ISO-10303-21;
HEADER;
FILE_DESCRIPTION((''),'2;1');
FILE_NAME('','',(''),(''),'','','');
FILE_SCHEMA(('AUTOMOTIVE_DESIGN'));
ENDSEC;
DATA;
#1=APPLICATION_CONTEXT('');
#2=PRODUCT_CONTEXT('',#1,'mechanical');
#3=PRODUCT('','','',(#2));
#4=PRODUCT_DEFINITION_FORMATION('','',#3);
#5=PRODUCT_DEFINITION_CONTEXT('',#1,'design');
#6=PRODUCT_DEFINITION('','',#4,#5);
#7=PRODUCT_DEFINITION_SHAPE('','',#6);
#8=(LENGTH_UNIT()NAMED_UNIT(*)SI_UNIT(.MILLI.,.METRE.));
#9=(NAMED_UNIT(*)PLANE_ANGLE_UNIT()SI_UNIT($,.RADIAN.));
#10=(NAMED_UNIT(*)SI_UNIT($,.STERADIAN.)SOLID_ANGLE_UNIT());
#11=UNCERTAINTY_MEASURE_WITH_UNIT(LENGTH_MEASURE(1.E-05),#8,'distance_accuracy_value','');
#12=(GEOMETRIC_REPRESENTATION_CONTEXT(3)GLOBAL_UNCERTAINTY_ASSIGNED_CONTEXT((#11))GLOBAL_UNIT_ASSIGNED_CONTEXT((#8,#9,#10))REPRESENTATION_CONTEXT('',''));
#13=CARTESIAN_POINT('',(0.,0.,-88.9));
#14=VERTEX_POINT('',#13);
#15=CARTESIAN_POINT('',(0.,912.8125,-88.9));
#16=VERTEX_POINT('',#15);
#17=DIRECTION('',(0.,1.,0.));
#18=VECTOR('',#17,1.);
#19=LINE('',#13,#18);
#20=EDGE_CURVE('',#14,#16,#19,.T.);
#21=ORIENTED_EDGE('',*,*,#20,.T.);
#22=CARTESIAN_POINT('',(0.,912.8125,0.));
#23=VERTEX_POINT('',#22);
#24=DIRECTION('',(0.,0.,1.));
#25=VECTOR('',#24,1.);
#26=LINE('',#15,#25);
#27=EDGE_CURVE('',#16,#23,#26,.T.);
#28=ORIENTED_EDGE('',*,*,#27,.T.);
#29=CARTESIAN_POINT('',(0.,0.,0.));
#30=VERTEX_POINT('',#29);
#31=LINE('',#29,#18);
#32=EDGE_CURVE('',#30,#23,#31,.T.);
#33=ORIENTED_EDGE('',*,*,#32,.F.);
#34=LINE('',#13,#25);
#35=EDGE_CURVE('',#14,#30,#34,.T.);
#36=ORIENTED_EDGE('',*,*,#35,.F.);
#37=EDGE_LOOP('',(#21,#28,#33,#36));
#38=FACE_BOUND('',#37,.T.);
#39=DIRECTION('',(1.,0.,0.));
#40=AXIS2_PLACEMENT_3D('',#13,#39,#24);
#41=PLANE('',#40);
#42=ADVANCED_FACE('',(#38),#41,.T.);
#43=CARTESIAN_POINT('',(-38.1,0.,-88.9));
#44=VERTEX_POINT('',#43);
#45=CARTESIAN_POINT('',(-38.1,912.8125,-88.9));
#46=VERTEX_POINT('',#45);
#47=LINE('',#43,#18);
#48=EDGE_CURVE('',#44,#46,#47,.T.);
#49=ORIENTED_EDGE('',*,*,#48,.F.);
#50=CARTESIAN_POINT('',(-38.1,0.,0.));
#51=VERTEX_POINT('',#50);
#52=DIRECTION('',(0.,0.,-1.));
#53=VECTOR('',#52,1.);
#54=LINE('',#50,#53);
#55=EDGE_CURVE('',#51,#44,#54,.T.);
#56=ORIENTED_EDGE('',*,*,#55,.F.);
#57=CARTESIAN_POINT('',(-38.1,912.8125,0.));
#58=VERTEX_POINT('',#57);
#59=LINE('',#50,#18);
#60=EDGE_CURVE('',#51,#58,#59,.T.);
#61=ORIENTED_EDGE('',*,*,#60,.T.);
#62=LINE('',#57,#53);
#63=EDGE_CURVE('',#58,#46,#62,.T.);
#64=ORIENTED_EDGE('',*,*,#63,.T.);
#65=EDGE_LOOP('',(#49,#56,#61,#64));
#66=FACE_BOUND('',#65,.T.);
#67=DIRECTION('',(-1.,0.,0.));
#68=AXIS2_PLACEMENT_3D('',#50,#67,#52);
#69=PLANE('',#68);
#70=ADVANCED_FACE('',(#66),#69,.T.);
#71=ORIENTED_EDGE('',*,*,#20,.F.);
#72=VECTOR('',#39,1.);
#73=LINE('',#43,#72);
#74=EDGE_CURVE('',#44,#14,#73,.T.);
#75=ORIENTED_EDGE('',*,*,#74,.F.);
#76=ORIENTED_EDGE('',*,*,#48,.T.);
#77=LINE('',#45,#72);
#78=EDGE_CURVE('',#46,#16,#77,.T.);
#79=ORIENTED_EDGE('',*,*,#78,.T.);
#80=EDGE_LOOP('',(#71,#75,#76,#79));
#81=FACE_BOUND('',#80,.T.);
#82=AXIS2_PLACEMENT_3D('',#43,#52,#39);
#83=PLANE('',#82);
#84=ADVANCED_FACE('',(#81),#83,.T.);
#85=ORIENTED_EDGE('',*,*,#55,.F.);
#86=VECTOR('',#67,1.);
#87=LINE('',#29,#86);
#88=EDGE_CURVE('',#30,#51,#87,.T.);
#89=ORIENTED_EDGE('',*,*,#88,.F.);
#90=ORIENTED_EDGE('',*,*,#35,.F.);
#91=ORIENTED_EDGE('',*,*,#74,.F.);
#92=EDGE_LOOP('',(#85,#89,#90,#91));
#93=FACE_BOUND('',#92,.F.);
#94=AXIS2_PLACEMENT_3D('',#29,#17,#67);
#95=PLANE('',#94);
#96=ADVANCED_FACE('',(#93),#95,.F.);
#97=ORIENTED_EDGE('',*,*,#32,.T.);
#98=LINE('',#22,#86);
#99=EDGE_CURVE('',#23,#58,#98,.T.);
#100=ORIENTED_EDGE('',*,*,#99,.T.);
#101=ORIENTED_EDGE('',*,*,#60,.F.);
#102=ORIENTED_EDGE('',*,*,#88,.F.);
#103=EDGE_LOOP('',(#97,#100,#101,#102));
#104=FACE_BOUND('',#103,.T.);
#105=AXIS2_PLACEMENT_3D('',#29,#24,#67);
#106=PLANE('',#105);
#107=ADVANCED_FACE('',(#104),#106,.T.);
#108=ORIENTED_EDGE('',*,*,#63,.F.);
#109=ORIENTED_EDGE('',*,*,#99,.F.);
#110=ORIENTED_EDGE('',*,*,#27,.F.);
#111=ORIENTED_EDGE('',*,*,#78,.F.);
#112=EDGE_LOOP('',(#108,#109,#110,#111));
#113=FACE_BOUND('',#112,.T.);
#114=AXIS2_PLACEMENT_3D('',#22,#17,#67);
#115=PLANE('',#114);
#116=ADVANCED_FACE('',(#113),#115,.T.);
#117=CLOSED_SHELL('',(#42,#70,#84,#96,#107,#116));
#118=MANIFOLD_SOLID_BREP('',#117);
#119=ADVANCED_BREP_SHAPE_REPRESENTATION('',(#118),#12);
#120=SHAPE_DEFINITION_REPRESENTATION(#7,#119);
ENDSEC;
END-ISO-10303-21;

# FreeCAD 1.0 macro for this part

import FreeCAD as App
import Part
import Sketcher
Q = App.Units.Quantity

doc = App.newDocument("Part")
body = doc.addObject("PartDesign::Body", "Body")

# Sketch on XZ plane
sketch1 = body.newObject("Sketcher::SketchObject", "Sketch")
sketch1.AttachmentSupport = (doc.getObject("XZ_Plane"), [""])
sketch1.MapMode = "FlatFace"
sketch1.addGeometry([
    Part.LineSegment(App.Vector(-38.1, 0, 0), App.Vector(0, 0, 0)),
    Part.LineSegment(App.Vector(0, 0, 0), App.Vector(0, -88.9, 0)),
    Part.LineSegment(App.Vector(0, -88.9, 0), App.Vector(-38.1, -88.9, 0)),
    Part.LineSegment(App.Vector(-38.1, -88.9, 0), App.Vector(-38.1, 0, 0)),
], False)
sketch1.addConstraint([
    Sketcher.Constraint("Coincident", 0, 2, 1, 1),
    Sketcher.Constraint("Coincident", 1, 2, 2, 1),
    Sketcher.Constraint("Coincident", 2, 2, 3, 1),
    Sketcher.Constraint("Coincident", 3, 2, 0, 1),
    Sketcher.Constraint("Horizontal", 0),
    Sketcher.Constraint("Vertical", 1),
    Sketcher.Constraint("Horizontal", 2),
    Sketcher.Constraint("Vertical", 3),
    Sketcher.Constraint("Coincident", 0, 2, -1, 1),
    Sketcher.Constraint("DistanceX", 0, 1, 0, 2, Q("1.5 in")),
    Sketcher.Constraint("DistanceY", 1, 2, 1, 1, Q("3.5 in")),
])
pad1 = body.newObject("PartDesign::Pad", "Pad")
pad1.Profile = sketch1
pad1.Length = Q("35.9375 in")
pad1.Reversed = True

doc.recompute()
